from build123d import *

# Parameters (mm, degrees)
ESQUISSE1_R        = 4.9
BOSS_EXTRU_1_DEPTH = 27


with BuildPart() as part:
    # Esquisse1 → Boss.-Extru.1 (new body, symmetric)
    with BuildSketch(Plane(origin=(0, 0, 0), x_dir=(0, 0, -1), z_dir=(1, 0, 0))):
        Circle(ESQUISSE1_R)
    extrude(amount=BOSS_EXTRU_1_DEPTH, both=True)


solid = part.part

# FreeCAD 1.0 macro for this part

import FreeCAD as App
import Part
import Sketcher

V = App.Vector
Q = App.Units.Quantity

doc = App.newDocument("Part")
body = doc.addObject("PartDesign::Body", "Body")

# Sketch on YZ plane
sketch1 = body.newObject("Sketcher::SketchObject", "Sketch")
sketch1.AttachmentSupport = (doc.getObject("YZ_Plane"), [""])
sketch1.MapMode = "FlatFace"
sketch1.addGeometry(Part.Circle(V(0, 0, 0), V(0, 0, 1), 4.9), False)
sketch1.addConstraint(Sketcher.Constraint("Coincident", 0, 3, -1, 1))
sketch1.addConstraint(Sketcher.Constraint("Diameter", 0, Q("9.8 mm")))
pad1 = body.newObject("PartDesign::Pad", "Pad")
pad1.Profile = sketch1
pad1.Length = 54
pad1.Midplane = True

doc.recompute()
